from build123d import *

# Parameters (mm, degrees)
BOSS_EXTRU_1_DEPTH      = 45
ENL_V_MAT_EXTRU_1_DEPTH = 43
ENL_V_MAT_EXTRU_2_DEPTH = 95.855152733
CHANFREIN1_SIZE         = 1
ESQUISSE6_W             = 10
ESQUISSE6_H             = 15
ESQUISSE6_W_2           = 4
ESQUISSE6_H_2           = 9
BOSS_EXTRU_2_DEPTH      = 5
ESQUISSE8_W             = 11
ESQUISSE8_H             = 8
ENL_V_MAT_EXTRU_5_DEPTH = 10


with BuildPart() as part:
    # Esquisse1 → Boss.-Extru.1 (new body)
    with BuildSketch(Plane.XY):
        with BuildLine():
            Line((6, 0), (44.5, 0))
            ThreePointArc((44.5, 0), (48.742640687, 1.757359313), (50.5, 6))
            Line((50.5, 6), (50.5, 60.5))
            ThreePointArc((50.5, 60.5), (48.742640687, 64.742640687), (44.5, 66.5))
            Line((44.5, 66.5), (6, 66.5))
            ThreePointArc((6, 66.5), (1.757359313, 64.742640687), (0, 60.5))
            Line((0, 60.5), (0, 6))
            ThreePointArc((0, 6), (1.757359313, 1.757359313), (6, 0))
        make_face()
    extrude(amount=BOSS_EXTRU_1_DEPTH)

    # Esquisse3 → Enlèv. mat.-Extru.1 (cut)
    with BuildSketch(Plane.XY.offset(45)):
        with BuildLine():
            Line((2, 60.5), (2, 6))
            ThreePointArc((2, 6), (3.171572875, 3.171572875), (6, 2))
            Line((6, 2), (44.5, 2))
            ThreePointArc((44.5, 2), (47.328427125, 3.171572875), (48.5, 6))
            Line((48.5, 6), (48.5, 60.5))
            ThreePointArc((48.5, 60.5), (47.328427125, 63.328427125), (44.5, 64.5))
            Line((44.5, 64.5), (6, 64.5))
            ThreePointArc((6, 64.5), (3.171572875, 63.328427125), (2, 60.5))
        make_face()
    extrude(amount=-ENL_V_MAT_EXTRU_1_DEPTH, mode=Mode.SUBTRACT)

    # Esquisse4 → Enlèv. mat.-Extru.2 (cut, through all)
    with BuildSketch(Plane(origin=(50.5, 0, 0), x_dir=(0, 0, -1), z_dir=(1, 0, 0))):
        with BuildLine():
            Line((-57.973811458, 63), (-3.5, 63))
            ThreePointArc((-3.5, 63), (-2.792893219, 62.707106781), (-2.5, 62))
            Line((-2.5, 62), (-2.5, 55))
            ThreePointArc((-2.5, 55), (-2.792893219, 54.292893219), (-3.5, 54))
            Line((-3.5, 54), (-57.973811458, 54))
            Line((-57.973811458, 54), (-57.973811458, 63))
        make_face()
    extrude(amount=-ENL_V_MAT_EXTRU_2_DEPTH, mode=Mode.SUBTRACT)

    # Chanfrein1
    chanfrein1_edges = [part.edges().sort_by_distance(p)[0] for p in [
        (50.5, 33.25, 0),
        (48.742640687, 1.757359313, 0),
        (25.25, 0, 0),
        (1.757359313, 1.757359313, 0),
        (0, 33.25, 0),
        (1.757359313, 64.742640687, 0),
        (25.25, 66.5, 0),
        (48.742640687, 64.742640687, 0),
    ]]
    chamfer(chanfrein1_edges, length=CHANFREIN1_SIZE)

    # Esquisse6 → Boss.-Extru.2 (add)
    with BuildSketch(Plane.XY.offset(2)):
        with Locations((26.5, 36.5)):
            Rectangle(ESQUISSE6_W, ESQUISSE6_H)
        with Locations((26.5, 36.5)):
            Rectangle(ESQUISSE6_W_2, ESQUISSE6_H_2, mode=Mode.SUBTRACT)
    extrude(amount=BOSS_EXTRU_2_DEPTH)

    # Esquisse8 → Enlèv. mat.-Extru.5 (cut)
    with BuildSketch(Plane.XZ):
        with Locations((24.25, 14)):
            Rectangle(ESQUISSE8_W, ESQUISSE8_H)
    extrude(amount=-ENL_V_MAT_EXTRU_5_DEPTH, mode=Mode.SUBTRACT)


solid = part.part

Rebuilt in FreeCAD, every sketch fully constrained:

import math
import FreeCAD as App
import Part
import Sketcher

V = App.Vector
Q = App.Units.Quantity


def edges_at(feature, points):
    """Names of the edges that pass closest to the given points."""
    edges = feature.Shape.Edges
    near = lambda p: min(range(len(edges)), key=lambda i: edges[i].distToShape(Part.Vertex(*p))[0])
    return sorted({f"Edge{near(p) + 1}" for p in points})


def add_polygon(sketch, points):
    """Adds a closed chain of lines whose ends are joined by coincident constraints."""
    first, n = sketch.GeometryCount, len(points)
    for a, b in zip(points, points[1:] + points[:1]):
        sketch.addGeometry(Part.LineSegment(App.Vector(*a, 0), App.Vector(*b, 0)), False)
    for i in range(n):
        sketch.addConstraint(Sketcher.Constraint("Coincident", first + i, 2, first + (i + 1) % n, 1))

doc = App.newDocument("Part")
body = doc.addObject("PartDesign::Body", "Body")

# Sketch on XY plane
sketch1 = body.newObject("Sketcher::SketchObject", "Sketch")
sketch1.AttachmentSupport = (doc.getObject("XY_Plane"), [""])
sketch1.MapMode = "FlatFace"
sketch1.addGeometry([
    Part.LineSegment(V(6, 0, 0), V(44.5, 0, 0)),  # 0
    Part.ArcOfCircle(Part.Circle(V(44.5, 6, 0), V(0, 0, 1), 6), math.radians(-90), math.radians(0)),  # 1
    Part.LineSegment(V(50.5, 6, 0), V(50.5, 60.5, 0)),  # 2
    Part.ArcOfCircle(Part.Circle(V(44.5, 60.5, 0), V(0, 0, 1), 6), math.radians(0), math.radians(90)),  # 3
    Part.LineSegment(V(44.5, 66.5, 0), V(6, 66.5, 0)),  # 4
    Part.ArcOfCircle(Part.Circle(V(6, 60.5, 0), V(0, 0, 1), 6), math.radians(90), math.radians(180)),  # 5
    Part.LineSegment(V(0, 60.5, 0), V(0, 6, 0)),  # 6
    Part.ArcOfCircle(Part.Circle(V(6, 6, 0), V(0, 0, 1), 6), math.radians(180), math.radians(270)),  # 7
], False)
sketch1.addConstraint([
    Sketcher.Constraint("Tangent", 0, 2, 1, 1),
    Sketcher.Constraint("Tangent", 1, 2, 2, 1),
    Sketcher.Constraint("Tangent", 2, 2, 3, 1),
    Sketcher.Constraint("Tangent", 3, 2, 4, 1),
    Sketcher.Constraint("Tangent", 4, 2, 5, 1),
    Sketcher.Constraint("Tangent", 5, 2, 6, 1),
    Sketcher.Constraint("Tangent", 6, 2, 7, 1),
    Sketcher.Constraint("Tangent", 7, 2, 0, 1),
    Sketcher.Constraint("Horizontal", 0),
    Sketcher.Constraint("Vertical", 2),
    Sketcher.Constraint("Horizontal", 4),
    Sketcher.Constraint("Vertical", 6),
    Sketcher.Constraint("Equal", 1, 3),
    Sketcher.Constraint("Equal", 3, 5),
    Sketcher.Constraint("Equal", 5, 7),
    Sketcher.Constraint("PointOnObject", 0, 2, -1),
    Sketcher.Constraint("PointOnObject", 5, 2, -2),
    Sketcher.Constraint("Radius", 1, Q("6 mm")),
    Sketcher.Constraint("DistanceX", 0, 1, 0, 2, Q("38.5 mm")),
    Sketcher.Constraint("DistanceY", 2, 1, 2, 2, Q("54.5 mm")),
])
pad1 = body.newObject("PartDesign::Pad", "Pad")
pad1.Profile = sketch1
pad1.Length = 45

# Sketch on XY plane
sketch2 = body.newObject("Sketcher::SketchObject", "Sketch001")
sketch2.AttachmentSupport = (doc.getObject("XY_Plane"), [""])
sketch2.MapMode = "FlatFace"
sketch2.AttachmentOffset = App.Placement(V(0, 0, 45), App.Rotation())
sketch2.addGeometry([
    Part.LineSegment(V(2, 60.5, 0), V(2, 6, 0)),  # 0
    Part.ArcOfCircle(Part.Circle(V(6, 6, 0), V(0, 0, 1), 4), math.radians(180), math.radians(270)),  # 1
    Part.LineSegment(V(6, 2, 0), V(44.5, 2, 0)),  # 2
    Part.ArcOfCircle(Part.Circle(V(44.5, 6, 0), V(0, 0, 1), 4), math.radians(-90), math.radians(0)),  # 3
    Part.LineSegment(V(48.5, 6, 0), V(48.5, 60.5, 0)),  # 4
    Part.ArcOfCircle(Part.Circle(V(44.5, 60.5, 0), V(0, 0, 1), 4), math.radians(0), math.radians(90)),  # 5
    Part.LineSegment(V(44.5, 64.5, 0), V(6, 64.5, 0)),  # 6
    Part.ArcOfCircle(Part.Circle(V(6, 60.5, 0), V(0, 0, 1), 4), math.radians(90), math.radians(180)),  # 7
], False)
sketch2.addConstraint([
    Sketcher.Constraint("Tangent", 0, 2, 1, 1),
    Sketcher.Constraint("Tangent", 1, 2, 2, 1),
    Sketcher.Constraint("Tangent", 2, 2, 3, 1),
    Sketcher.Constraint("Tangent", 3, 2, 4, 1),
    Sketcher.Constraint("Tangent", 4, 2, 5, 1),
    Sketcher.Constraint("Tangent", 5, 2, 6, 1),
    Sketcher.Constraint("Tangent", 6, 2, 7, 1),
    Sketcher.Constraint("Tangent", 7, 2, 0, 1),
    Sketcher.Constraint("Vertical", 0),
    Sketcher.Constraint("Horizontal", 2),
    Sketcher.Constraint("Vertical", 4),
    Sketcher.Constraint("Horizontal", 6),
    Sketcher.Constraint("Equal", 1, 3),
    Sketcher.Constraint("Equal", 3, 5),
    Sketcher.Constraint("Equal", 5, 7),
    Sketcher.Constraint("Radius", 1, Q("4 mm")),
    Sketcher.Constraint("DistanceX", 2, 1, 2, 2, Q("38.5 mm")),
    Sketcher.Constraint("DistanceY", 0, 2, 0, 1, Q("54.5 mm")),
    Sketcher.Constraint("DistanceX", -1, 1, 1, 3, Q("6 mm")),
    Sketcher.Constraint("DistanceY", -1, 1, 1, 3, Q("6 mm")),
])
pocket1 = body.newObject("PartDesign::Pocket", "Pocket")
pocket1.Profile = sketch2
pocket1.Length = 43

# Sketch on YZ plane
sketch3 = body.newObject("Sketcher::SketchObject", "Sketch002")
sketch3.AttachmentSupport = (doc.getObject("YZ_Plane"), [""])
sketch3.MapMode = "FlatFace"
sketch3.AttachmentOffset = App.Placement(V(0, 0, 50.5), App.Rotation())
sketch3.addGeometry([
    Part.LineSegment(V(63, 3.5, 0), V(63, 57.973811, 0)),  # 0
    Part.LineSegment(V(63, 57.973811, 0), V(54, 57.973811, 0)),  # 1
    Part.LineSegment(V(54, 57.973811, 0), V(54, 3.5, 0)),  # 2
    Part.ArcOfCircle(Part.Circle(V(55, 3.5, 0), V(0, 0, 1), 1), math.radians(-180), math.radians(-90)),  # 3
    Part.LineSegment(V(55, 2.5, 0), V(62, 2.5, 0)),  # 4
    Part.ArcOfCircle(Part.Circle(V(62, 3.5, 0), V(0, 0, 1), 1), math.radians(-90), math.radians(0)),  # 5
], False)
sketch3.addConstraint([
    Sketcher.Constraint("Coincident", 0, 2, 1, 1),
    Sketcher.Constraint("Coincident", 1, 2, 2, 1),
    Sketcher.Constraint("Tangent", 2, 2, 3, 1),
    Sketcher.Constraint("Tangent", 3, 2, 4, 1),
    Sketcher.Constraint("Tangent", 4, 2, 5, 1),
    Sketcher.Constraint("Tangent", 5, 2, 0, 1),
    Sketcher.Constraint("Vertical", 0),
    Sketcher.Constraint("Horizontal", 1),
    Sketcher.Constraint("Vertical", 2),
    Sketcher.Constraint("Horizontal", 4),
    Sketcher.Constraint("Equal", 3, 5),
    Sketcher.Constraint("Radius", 3, Q("1 mm")),
    Sketcher.Constraint("DistanceX", 1, 2, 1, 1, Q("9 mm")),
    Sketcher.Constraint("DistanceX", -1, 1, 3, 3, Q("55 mm")),
    Sketcher.Constraint("DistanceY", -1, 1, 3, 3, Q("3.5 mm")),
    Sketcher.Constraint("DistanceY", 0, 1, 0, 2, Q("54.473811 mm")),
])
pocket2 = body.newObject("PartDesign::Pocket", "Pocket001")
pocket2.Profile = sketch3
pocket2.Type = "ThroughAll"
doc.recompute()

chamfer = body.newObject("PartDesign::Chamfer", "Chamfer")
chamfer.Base = (pocket2, edges_at(pocket2, [
    (50.5, 33.25, 0),
    (48.743, 1.757, 0),
    (25.25, 0, 0),
    (1.757, 1.757, 0),
    (0, 33.25, 0),
    (1.757, 64.743, 0),
    (25.25, 66.5, 0),
    (48.743, 64.743, 0),
]))
chamfer.Size = 1

# Sketch on XY plane
sketch4 = body.newObject("Sketcher::SketchObject", "Sketch003")
sketch4.AttachmentSupport = (doc.getObject("XY_Plane"), [""])
sketch4.MapMode = "FlatFace"
sketch4.AttachmentOffset = App.Placement(V(0, 0, 2), App.Rotation())
add_polygon(sketch4, [(21.5, 44), (21.5, 29), (31.5, 29), (31.5, 44)])  # lines 0-3
add_polygon(sketch4, [(28.5, 32), (24.5, 32), (24.5, 41), (28.5, 41)])  # lines 4-7
sketch4.addConstraint([
    Sketcher.Constraint("Vertical", 0),
    Sketcher.Constraint("Horizontal", 1),
    Sketcher.Constraint("Vertical", 2),
    Sketcher.Constraint("Horizontal", 3),
    Sketcher.Constraint("Horizontal", 4),
    Sketcher.Constraint("Vertical", 5),
    Sketcher.Constraint("Horizontal", 6),
    Sketcher.Constraint("Vertical", 7),
    Sketcher.Constraint("DistanceX", 1, 1, 1, 2, Q("10 mm")),
    Sketcher.Constraint("DistanceX", 4, 2, 4, 1, Q("4 mm")),
    Sketcher.Constraint("DistanceY", 0, 2, 0, 1, Q("15 mm")),
    Sketcher.Constraint("DistanceY", 5, 1, 5, 2, Q("9 mm")),
    Sketcher.Constraint("DistanceY", -1, 1, 0, 2, Q("29 mm")),
    Sketcher.Constraint("DistanceY", -1, 1, 4, 2, Q("32 mm")),
    Sketcher.Constraint("DistanceX", 0, 2, 4, 2, Q("3 mm")),
    Sketcher.Constraint("DistanceX", -1, 1, 0, 2, Q("21.5 mm")),
])
pad2 = body.newObject("PartDesign::Pad", "Pad001")
pad2.Profile = sketch4
pad2.Length = 5

# Sketch on XZ plane
sketch5 = body.newObject("Sketcher::SketchObject", "Sketch004")
sketch5.AttachmentSupport = (doc.getObject("XZ_Plane"), [""])
sketch5.MapMode = "FlatFace"
add_polygon(sketch5, [(18.75, 18), (18.75, 10), (29.75, 10), (29.75, 18)])  # lines 0-3
sketch5.addConstraint([
    Sketcher.Constraint("Vertical", 0),
    Sketcher.Constraint("Horizontal", 1),
    Sketcher.Constraint("Vertical", 2),
    Sketcher.Constraint("Horizontal", 3),
    Sketcher.Constraint("DistanceX", 1, 1, 1, 2, Q("11 mm")),
    Sketcher.Constraint("DistanceY", 0, 2, 0, 1, Q("8 mm")),
    Sketcher.Constraint("DistanceY", -1, 1, 0, 2, Q("10 mm")),
    Sketcher.Constraint("DistanceX", -1, 1, 0, 2, Q("18.75 mm")),
])
pocket3 = body.newObject("PartDesign::Pocket", "Pocket002")
pocket3.Profile = sketch5
pocket3.Length = 10

doc.recompute()
